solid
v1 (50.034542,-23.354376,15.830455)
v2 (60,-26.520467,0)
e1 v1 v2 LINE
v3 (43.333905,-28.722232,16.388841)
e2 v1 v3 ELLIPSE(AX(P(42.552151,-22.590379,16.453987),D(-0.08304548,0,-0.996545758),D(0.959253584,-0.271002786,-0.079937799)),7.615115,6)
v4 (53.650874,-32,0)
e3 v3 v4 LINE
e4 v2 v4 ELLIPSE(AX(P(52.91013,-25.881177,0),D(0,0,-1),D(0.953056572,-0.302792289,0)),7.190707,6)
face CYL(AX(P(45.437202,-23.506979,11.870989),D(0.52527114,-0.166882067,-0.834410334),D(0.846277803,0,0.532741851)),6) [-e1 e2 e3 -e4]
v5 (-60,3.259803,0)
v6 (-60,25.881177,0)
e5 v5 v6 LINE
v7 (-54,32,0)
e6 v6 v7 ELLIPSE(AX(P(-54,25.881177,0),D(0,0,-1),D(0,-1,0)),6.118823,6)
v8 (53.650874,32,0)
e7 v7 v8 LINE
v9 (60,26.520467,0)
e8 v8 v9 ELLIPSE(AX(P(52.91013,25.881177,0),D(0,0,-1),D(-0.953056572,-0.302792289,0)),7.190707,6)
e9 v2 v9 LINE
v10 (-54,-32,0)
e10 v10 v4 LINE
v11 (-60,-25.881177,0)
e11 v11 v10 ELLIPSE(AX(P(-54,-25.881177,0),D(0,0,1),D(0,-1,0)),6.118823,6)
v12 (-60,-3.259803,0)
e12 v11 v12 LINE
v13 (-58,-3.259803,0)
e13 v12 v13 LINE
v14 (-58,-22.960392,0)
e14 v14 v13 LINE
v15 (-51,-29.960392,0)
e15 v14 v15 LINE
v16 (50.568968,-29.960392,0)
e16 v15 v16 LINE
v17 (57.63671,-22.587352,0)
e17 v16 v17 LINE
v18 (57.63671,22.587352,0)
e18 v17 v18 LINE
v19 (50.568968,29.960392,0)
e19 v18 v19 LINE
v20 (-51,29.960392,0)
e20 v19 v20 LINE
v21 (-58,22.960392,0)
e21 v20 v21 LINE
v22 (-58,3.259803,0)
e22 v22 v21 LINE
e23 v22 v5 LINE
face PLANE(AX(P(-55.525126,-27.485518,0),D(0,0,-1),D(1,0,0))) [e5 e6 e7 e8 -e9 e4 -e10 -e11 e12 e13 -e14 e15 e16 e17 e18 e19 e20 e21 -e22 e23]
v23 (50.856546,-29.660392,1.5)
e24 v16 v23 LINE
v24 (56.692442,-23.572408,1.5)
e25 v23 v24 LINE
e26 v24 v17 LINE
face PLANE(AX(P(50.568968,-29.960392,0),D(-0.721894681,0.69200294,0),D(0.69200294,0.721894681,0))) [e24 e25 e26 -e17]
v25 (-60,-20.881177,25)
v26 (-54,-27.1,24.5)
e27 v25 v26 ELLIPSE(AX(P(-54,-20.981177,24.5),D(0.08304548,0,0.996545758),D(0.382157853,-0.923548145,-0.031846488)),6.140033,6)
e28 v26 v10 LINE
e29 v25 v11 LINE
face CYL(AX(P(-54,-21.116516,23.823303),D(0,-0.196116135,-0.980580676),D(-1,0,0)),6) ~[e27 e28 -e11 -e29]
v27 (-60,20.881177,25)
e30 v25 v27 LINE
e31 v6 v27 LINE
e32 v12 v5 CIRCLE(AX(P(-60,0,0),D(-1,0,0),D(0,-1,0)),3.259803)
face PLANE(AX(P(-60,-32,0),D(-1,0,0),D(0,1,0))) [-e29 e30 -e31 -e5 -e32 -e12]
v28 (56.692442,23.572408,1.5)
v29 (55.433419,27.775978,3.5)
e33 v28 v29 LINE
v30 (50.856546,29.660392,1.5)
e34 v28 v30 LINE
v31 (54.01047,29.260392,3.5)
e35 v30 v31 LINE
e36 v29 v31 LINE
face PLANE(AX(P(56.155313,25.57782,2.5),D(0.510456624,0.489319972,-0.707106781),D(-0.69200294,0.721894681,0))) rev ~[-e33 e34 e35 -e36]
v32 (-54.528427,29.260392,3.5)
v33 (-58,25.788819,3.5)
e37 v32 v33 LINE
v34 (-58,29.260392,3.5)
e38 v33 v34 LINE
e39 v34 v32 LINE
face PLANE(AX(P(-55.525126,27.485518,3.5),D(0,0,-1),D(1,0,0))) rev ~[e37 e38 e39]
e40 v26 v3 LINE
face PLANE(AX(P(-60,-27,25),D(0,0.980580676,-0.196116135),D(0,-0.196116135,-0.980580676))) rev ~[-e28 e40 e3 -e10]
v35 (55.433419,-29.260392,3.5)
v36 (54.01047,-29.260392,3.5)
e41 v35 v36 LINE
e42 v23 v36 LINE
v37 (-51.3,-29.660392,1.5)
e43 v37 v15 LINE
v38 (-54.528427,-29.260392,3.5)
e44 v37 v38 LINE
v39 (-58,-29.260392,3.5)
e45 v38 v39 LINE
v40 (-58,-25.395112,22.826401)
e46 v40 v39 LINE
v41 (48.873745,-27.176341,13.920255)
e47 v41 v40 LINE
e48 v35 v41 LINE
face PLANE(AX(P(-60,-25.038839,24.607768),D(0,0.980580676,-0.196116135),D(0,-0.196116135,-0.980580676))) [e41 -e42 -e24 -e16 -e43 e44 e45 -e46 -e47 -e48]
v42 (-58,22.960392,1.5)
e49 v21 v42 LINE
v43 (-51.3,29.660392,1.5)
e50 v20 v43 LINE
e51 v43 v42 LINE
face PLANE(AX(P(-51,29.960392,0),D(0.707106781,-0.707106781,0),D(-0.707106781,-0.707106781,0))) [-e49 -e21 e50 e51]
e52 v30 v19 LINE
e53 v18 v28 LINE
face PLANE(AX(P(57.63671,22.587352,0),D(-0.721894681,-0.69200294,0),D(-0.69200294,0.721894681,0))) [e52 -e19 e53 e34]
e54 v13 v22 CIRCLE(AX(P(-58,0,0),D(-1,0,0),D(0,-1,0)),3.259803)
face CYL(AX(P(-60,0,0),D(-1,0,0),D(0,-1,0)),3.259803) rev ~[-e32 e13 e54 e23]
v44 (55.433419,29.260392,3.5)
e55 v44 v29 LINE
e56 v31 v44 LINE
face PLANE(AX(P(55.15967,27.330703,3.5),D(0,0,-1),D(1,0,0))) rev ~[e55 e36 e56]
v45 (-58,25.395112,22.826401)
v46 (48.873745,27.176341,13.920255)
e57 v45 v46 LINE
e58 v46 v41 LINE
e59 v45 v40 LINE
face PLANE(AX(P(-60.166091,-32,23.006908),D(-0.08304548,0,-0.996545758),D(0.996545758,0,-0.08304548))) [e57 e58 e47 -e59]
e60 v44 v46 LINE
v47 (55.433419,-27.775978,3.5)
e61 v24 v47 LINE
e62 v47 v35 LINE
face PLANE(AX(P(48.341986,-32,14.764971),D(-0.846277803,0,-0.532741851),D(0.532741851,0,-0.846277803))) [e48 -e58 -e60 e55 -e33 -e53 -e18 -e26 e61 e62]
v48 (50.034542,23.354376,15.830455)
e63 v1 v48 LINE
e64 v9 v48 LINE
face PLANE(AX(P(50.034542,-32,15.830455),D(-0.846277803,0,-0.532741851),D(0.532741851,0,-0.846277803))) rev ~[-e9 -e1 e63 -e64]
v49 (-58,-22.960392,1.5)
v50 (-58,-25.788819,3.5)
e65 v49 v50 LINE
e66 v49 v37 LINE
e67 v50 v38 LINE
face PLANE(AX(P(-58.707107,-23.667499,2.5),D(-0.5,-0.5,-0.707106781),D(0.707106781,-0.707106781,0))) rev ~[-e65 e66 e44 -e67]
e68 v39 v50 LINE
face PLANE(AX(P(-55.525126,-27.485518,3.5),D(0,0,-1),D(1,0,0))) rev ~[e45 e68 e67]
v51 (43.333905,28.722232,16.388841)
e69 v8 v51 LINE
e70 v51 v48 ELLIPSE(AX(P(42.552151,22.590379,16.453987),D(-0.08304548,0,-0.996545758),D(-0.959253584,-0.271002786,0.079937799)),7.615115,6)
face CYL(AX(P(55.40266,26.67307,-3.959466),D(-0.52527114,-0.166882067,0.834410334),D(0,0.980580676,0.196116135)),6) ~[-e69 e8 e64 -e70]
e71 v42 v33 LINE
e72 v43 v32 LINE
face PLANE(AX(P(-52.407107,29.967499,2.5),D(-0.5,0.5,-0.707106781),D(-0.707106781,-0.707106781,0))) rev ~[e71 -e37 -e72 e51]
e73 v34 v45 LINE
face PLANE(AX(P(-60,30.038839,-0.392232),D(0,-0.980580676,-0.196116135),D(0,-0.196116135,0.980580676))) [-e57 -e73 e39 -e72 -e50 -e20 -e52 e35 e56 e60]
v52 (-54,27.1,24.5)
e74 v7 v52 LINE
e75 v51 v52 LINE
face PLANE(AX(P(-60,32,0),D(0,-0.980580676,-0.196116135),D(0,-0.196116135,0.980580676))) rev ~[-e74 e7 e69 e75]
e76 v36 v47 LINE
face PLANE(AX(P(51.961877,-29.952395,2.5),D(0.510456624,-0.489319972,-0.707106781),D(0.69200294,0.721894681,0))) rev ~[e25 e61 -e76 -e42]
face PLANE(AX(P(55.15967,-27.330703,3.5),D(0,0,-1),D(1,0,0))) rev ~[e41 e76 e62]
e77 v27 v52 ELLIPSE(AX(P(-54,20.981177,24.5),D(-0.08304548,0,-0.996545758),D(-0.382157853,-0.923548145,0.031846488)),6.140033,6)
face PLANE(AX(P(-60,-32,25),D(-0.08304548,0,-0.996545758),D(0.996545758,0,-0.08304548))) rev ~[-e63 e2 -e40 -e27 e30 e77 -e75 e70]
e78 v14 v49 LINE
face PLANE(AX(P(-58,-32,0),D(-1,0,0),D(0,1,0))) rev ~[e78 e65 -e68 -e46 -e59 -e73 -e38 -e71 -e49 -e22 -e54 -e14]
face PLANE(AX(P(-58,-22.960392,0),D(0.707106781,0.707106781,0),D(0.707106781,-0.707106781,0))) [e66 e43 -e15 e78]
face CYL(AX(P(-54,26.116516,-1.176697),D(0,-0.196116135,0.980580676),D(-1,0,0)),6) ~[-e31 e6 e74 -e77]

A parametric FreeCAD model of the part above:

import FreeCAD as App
import Part
import Sketcher


def edges_at(feature, points):
    """Names of the edges that pass closest to the given points."""
    edges = feature.Shape.Edges
    near = lambda p: min(range(len(edges)), key=lambda i: edges[i].distToShape(Part.Vertex(*p))[0])
    return sorted({f"Edge{near(p) + 1}" for p in points})


def faces_at(feature, points):
    """Names of the faces that lie closest to the given points."""
    faces = feature.Shape.Faces
    near = lambda p: min(range(len(faces)), key=lambda i: faces[i].distToShape(Part.Vertex(*p))[0])
    return sorted({f"Face{near(p) + 1}" for p in points})

doc = App.newDocument("Part")
params = doc.addObject("Spreadsheet::Sheet", "Params")
for row, (alias, value) in enumerate([
    ("sketch1_width", "120 mm"),
    ("sketch1_height", "64 mm"),
    ("pad1_length", "25 mm"),
    ("sketch2_width", "120 mm"),
    ("sketch2_height", "10 mm"),
    ("sketch3_height", "15 mm"),
    ("sketch3_length", "10 mm"),
    ("sketch4_width", "5 mm"),
    ("sketch4_height", "25 mm"),
    ("thickness_wall", "2 mm"),
    ("pocket4_length", "25 mm"),
    ("sketch6_width", "7 mm"),
    ("pad2_length", "3.5 mm"),
    ("chamfer_size", "2 mm"),
    ("fillet_radius", "6 mm"),
], start=1):
    params.set(f"A{row}", alias)
    params.set(f"B{row}", "=" + value)
    params.setAlias(f"B{row}", alias)

body = doc.addObject("PartDesign::Body", "Body")

sketch1 = body.newObject("Sketcher::SketchObject", "Sketch")
sketch1.AttachmentSupport = (doc.getObject("XY_Plane"), [""])
sketch1.MapMode = "FlatFace"
sketch1.addGeometry(Part.LineSegment(App.Vector(-60, 32, 0), App.Vector(-60, -32, 0)), False)
sketch1.addGeometry(Part.LineSegment(App.Vector(-60, -32, 0), App.Vector(60, -32, 0)), False)
sketch1.addGeometry(Part.LineSegment(App.Vector(60, -32, 0), App.Vector(60, 32, 0)), False)
sketch1.addGeometry(Part.LineSegment(App.Vector(60, 32, 0), App.Vector(-60, 32, 0)), False)
sketch1.addConstraint(Sketcher.Constraint("Coincident", 0, 2, 1, 1))
sketch1.addConstraint(Sketcher.Constraint("Coincident", 1, 2, 2, 1))
sketch1.addConstraint(Sketcher.Constraint("Coincident", 2, 2, 3, 1))
sketch1.addConstraint(Sketcher.Constraint("Coincident", 3, 2, 0, 1))
sketch1.addConstraint(Sketcher.Constraint("Vertical", 0))
sketch1.addConstraint(Sketcher.Constraint("Horizontal", 1))
sketch1.addConstraint(Sketcher.Constraint("Vertical", 2))
sketch1.addConstraint(Sketcher.Constraint("Horizontal", 3))
sketch1.addConstraint(Sketcher.Constraint("Symmetric", 0, 2, 2, 2, -1, 1))
sketch1.addConstraint(Sketcher.Constraint("DistanceX", 1, 1, 1, 2, 120.0))
sketch1.addConstraint(Sketcher.Constraint("DistanceY", 0, 2, 0, 1, 64.0))
sketch1.setExpression("Constraints[9]", "Params.sketch1_width")
sketch1.setExpression("Constraints[10]", "Params.sketch1_height")
pad1 = body.newObject("PartDesign::Pad", "Pad")
pad1.Profile = sketch1
pad1.setExpression("Length", "Params.pad1_length")

sketch2 = body.newObject("Sketcher::SketchObject", "Sketch001")
sketch2.AttachmentSupport = (doc.getObject("XZ_Plane"), [""])
sketch2.MapMode = "FlatFace"
sketch2.AttachmentOffset = App.Placement(App.Vector(0, 0, 32), App.Rotation())
sketch2.addGeometry(Part.LineSegment(App.Vector(60, 25, 0), App.Vector(-60, 25, 0)), False)
sketch2.addGeometry(Part.LineSegment(App.Vector(-60, 25, 0), App.Vector(60, 15, 0)), False)
sketch2.addGeometry(Part.LineSegment(App.Vector(60, 15, 0), App.Vector(60, 25, 0)), False)
sketch2.addConstraint(Sketcher.Constraint("Coincident", 0, 2, 1, 1))
sketch2.addConstraint(Sketcher.Constraint("Coincident", 1, 2, 2, 1))
sketch2.addConstraint(Sketcher.Constraint("Coincident", 2, 2, 0, 1))
sketch2.addConstraint(Sketcher.Constraint("Horizontal", 0))
sketch2.addConstraint(Sketcher.Constraint("Vertical", 2))
sketch2.addConstraint(Sketcher.Constraint("DistanceX", 0, 2, 0, 1, 120.0))
sketch2.addConstraint(Sketcher.Constraint("DistanceY", 2, 1, 2, 2, 10.0))
sketch2.addConstraint(Sketcher.Constraint("DistanceX", 0, 2, -1, 1, 60.0))
sketch2.addConstraint(Sketcher.Constraint("DistanceY", -1, 1, 0, 2, 25.0))
sketch2.setExpression("Constraints[5]", "Params.sketch2_width")
sketch2.setExpression("Constraints[6]", "Params.sketch2_height")
pocket1 = body.newObject("PartDesign::Pocket", "Pocket")
pocket1.Profile = sketch2
pocket1.Type = "ThroughAll"

sketch3 = body.newObject("Sketcher::SketchObject", "Sketch002")
sketch3.AttachmentSupport = (doc.getObject("XZ_Plane"), [""])
sketch3.MapMode = "FlatFace"
sketch3.AttachmentOffset = App.Placement(App.Vector(0, 0, 32), App.Rotation())
sketch3.addGeometry(Part.LineSegment(App.Vector(50, 16, 0), App.Vector(60, 0, 0)), False)
sketch3.addGeometry(Part.LineSegment(App.Vector(60, 0, 0), App.Vector(60, 15, 0)), False)
sketch3.addGeometry(Part.LineSegment(App.Vector(60, 15, 0), App.Vector(50, 16, 0)), False)
sketch3.addConstraint(Sketcher.Constraint("Coincident", 0, 2, 1, 1))
sketch3.addConstraint(Sketcher.Constraint("Coincident", 1, 2, 2, 1))
sketch3.addConstraint(Sketcher.Constraint("Coincident", 2, 2, 0, 1))
sketch3.addConstraint(Sketcher.Constraint("Vertical", 1))
sketch3.addConstraint(Sketcher.Constraint("PointOnObject", 0, 2, -1))
sketch3.addConstraint(Sketcher.Constraint("DistanceY", 1, 1, 1, 2, 15.0))
sketch3.addConstraint(Sketcher.Constraint("Distance", 2, 10.0))
sketch3.addConstraint(Sketcher.Constraint("DistanceX", -1, 1, 0, 2, 60.0))
sketch3.addConstraint(Sketcher.Constraint("Distance", 0, 18.705979))
sketch3.setExpression("Constraints[5]", "Params.sketch3_height")
sketch3.setExpression("Constraints[6]", "Params.sketch3_length")
pocket2 = body.newObject("PartDesign::Pocket", "Pocket001")
pocket2.Profile = sketch3
pocket2.Type = "ThroughAll"

sketch4 = body.newObject("Sketcher::SketchObject", "Sketch003")
sketch4.AttachmentSupport = (doc.getObject("YZ_Plane"), [""])
sketch4.MapMode = "FlatFace"
sketch4.AttachmentOffset = App.Placement(App.Vector(0, 0, -60), App.Rotation())
sketch4.addGeometry(Part.LineSegment(App.Vector(27, 25, 0), App.Vector(32, 25, 0)), False)
sketch4.addGeometry(Part.LineSegment(App.Vector(32, 25, 0), App.Vector(32, 0, 0)), False)
sketch4.addGeometry(Part.LineSegment(App.Vector(32, 0, 0), App.Vector(27, 25, 0)), False)
sketch4.addGeometry(Part.LineSegment(App.Vector(-32, 25, 0), App.Vector(-27, 25, 0)), False)
sketch4.addGeometry(Part.LineSegment(App.Vector(-27, 25, 0), App.Vector(-32, 0, 0)), False)
sketch4.addGeometry(Part.LineSegment(App.Vector(-32, 0, 0), App.Vector(-32, 25, 0)), False)
sketch4.addConstraint(Sketcher.Constraint("Coincident", 0, 2, 1, 1))
sketch4.addConstraint(Sketcher.Constraint("Coincident", 1, 2, 2, 1))
sketch4.addConstraint(Sketcher.Constraint("Coincident", 2, 2, 0, 1))
sketch4.addConstraint(Sketcher.Constraint("Coincident", 3, 2, 4, 1))
sketch4.addConstraint(Sketcher.Constraint("Coincident", 4, 2, 5, 1))
sketch4.addConstraint(Sketcher.Constraint("Coincident", 5, 2, 3, 1))
sketch4.addConstraint(Sketcher.Constraint("Horizontal", 0))
sketch4.addConstraint(Sketcher.Constraint("Vertical", 1))
sketch4.addConstraint(Sketcher.Constraint("Horizontal", 3))
sketch4.addConstraint(Sketcher.Constraint("Vertical", 5))
sketch4.addConstraint(Sketcher.Constraint("Symmetric", 1, 2, 4, 2, -1, 1))
sketch4.addConstraint(Sketcher.Constraint("Symmetric", 2, 2, 3, 2, -2))
sketch4.addConstraint(Sketcher.Constraint("PointOnObject", 1, 2, -1))
sketch4.addConstraint(Sketcher.Constraint("DistanceX", 0, 1, 0, 2, 5.0))
sketch4.addConstraint(Sketcher.Constraint("DistanceY", 1, 2, 1, 1, 25.0))
sketch4.addConstraint(Sketcher.Constraint("DistanceX", -1, 1, 0, 2, 32.0))
sketch4.setExpression("Constraints[13]", "Params.sketch4_width")
sketch4.setExpression("Constraints[14]", "Params.sketch4_height")
pocket3 = body.newObject("PartDesign::Pocket", "Pocket002")
pocket3.Profile = sketch4
pocket3.Type = "ThroughAll"
pocket3.Reversed = True
doc.recompute()

thickness = body.newObject("PartDesign::Thickness", "Thickness")
thickness.Base = (pocket3, faces_at(pocket3, [(0, 0, 0)]))
thickness.setExpression("Value", "Params.thickness_wall")
thickness.Reversed = True
thickness.Join = "Arc"

sketch5 = body.newObject("Sketcher::SketchObject", "Sketch004")
sketch5.AttachmentSupport = (doc.getObject("YZ_Plane"), [""])
sketch5.MapMode = "FlatFace"
sketch5.AttachmentOffset = App.Placement(App.Vector(0, 0, -60), App.Rotation())
sketch5.addGeometry(Part.Circle(App.Vector(0, 0, 0), App.Vector(0, 0, 1), 3.3), False)
sketch5.addConstraint(Sketcher.Constraint("Coincident", 0, 3, -1, 1))
sketch5.addConstraint(Sketcher.Constraint("Diameter", 0, 6.519606))
pocket4 = body.newObject("PartDesign::Pocket", "Pocket003")
pocket4.Profile = sketch5
pocket4.setExpression("Length", "Params.pocket4_length")
pocket4.Reversed = True

sketch6 = body.newObject("Sketcher::SketchObject", "Sketch005")
sketch6.AttachmentSupport = (doc.getObject("XY_Plane"), [""])
sketch6.MapMode = "FlatFace"
sketch6.addGeometry(Part.LineSegment(App.Vector(-51, -30, 0), App.Vector(-58, -30, 0)), False)
sketch6.addGeometry(Part.LineSegment(App.Vector(-58, -30, 0), App.Vector(-58, -23, 0)), False)
sketch6.addGeometry(Part.LineSegment(App.Vector(-58, -23, 0), App.Vector(-51, -30, 0)), False)
sketch6.addGeometry(Part.LineSegment(App.Vector(58, -23, 0), App.Vector(58, -30, 0)), False)
sketch6.addGeometry(Part.LineSegment(App.Vector(58, -30, 0), App.Vector(51, -30, 0)), False)
sketch6.addGeometry(Part.LineSegment(App.Vector(51, -30, 0), App.Vector(58, -23, 0)), False)
sketch6.addGeometry(Part.LineSegment(App.Vector(58, 23, 0), App.Vector(51, 30, 0)), False)
sketch6.addGeometry(Part.LineSegment(App.Vector(51, 30, 0), App.Vector(58, 30, 0)), False)
sketch6.addGeometry(Part.LineSegment(App.Vector(58, 30, 0), App.Vector(58, 23, 0)), False)
sketch6.addGeometry(Part.LineSegment(App.Vector(-58, 23, 0), App.Vector(-58, 30, 0)), False)
sketch6.addGeometry(Part.LineSegment(App.Vector(-58, 30, 0), App.Vector(-51, 30, 0)), False)
sketch6.addGeometry(Part.LineSegment(App.Vector(-51, 30, 0), App.Vector(-58, 23, 0)), False)
sketch6.addConstraint(Sketcher.Constraint("Coincident", 0, 2, 1, 1))
sketch6.addConstraint(Sketcher.Constraint("Coincident", 1, 2, 2, 1))
sketch6.addConstraint(Sketcher.Constraint("Coincident", 2, 2, 0, 1))
sketch6.addConstraint(Sketcher.Constraint("Coincident", 3, 2, 4, 1))
sketch6.addConstraint(Sketcher.Constraint("Coincident", 4, 2, 5, 1))
sketch6.addConstraint(Sketcher.Constraint("Coincident", 5, 2, 3, 1))
sketch6.addConstraint(Sketcher.Constraint("Coincident", 6, 2, 7, 1))
sketch6.addConstraint(Sketcher.Constraint("Coincident", 7, 2, 8, 1))
sketch6.addConstraint(Sketcher.Constraint("Coincident", 8, 2, 6, 1))
sketch6.addConstraint(Sketcher.Constraint("Coincident", 9, 2, 10, 1))
sketch6.addConstraint(Sketcher.Constraint("Coincident", 10, 2, 11, 1))
sketch6.addConstraint(Sketcher.Constraint("Coincident", 11, 2, 9, 1))
sketch6.addConstraint(Sketcher.Constraint("Horizontal", 0))
sketch6.addConstraint(Sketcher.Constraint("Vertical", 1))
sketch6.addConstraint(Sketcher.Constraint("Vertical", 3))
sketch6.addConstraint(Sketcher.Constraint("Horizontal", 4))
sketch6.addConstraint(Sketcher.Constraint("Horizontal", 7))
sketch6.addConstraint(Sketcher.Constraint("Vertical", 8))
sketch6.addConstraint(Sketcher.Constraint("Vertical", 9))
sketch6.addConstraint(Sketcher.Constraint("Horizontal", 10))
sketch6.addConstraint(Sketcher.Constraint("Symmetric", 4, 2, 6, 2, -1))
sketch6.addConstraint(Sketcher.Constraint("Symmetric", 5, 2, 8, 2, -1))
sketch6.addConstraint(Sketcher.Constraint("Symmetric", 0, 2, 9, 2, -1))
sketch6.addConstraint(Sketcher.Constraint("Perpendicular", 2, 11))
sketch6.addConstraint(Sketcher.Constraint("Horizontal", 2, 2, 3, 2))
sketch6.addConstraint(Sketcher.Constraint("Vertical", 2, 2, 10, 2))
sketch6.addConstraint(Sketcher.Constraint("Equal", 10, 1))
sketch6.addConstraint(Sketcher.Constraint("DistanceX", 0, 2, 0, 1, 7.0))
sketch6.addConstraint(Sketcher.Constraint("DistanceX", 0, 2, -1, 1, 58.0))
sketch6.addConstraint(Sketcher.Constraint("DistanceY", 3, 2, 3, 1, 7.37304))
sketch6.addConstraint(Sketcher.Constraint("DistanceX", 4, 2, 4, 1, 7.067742))
sketch6.addConstraint(Sketcher.Constraint("DistanceY", 0, 2, -1, 1, 29.960392))
sketch6.addConstraint(Sketcher.Constraint("DistanceX", -1, 1, 3, 2, 57.63671))
sketch6.setExpression("Constraints[27]", "Params.sketch6_width")
pad2 = body.newObject("PartDesign::Pad", "Pad001")
pad2.Profile = sketch6
pad2.setExpression("Length", "Params.pad2_length")
doc.recompute()

chamfer = body.newObject("PartDesign::Chamfer", "Chamfer")
chamfer.Base = (pad2, edges_at(pad2, [
    (-54.85, 26.11, 3.5),
    (53.337, -27.073, 3.5),
    (-54.85, -26.11, 3.5),
    (53.337, 27.073, 3.5),
]))
chamfer.setExpression("Size", "Params.chamfer_size")
doc.recompute()

fillet = body.newObject("PartDesign::Fillet", "Fillet")
fillet.Base = (chamfer, edges_at(chamfer, [
    (55.017, -30.417, 7.915),
    (55.017, 30.417, 7.915),
    (-60, -29.5, 12.5),
    (-60, 29.5, 12.5),
]))
fillet.setExpression("Radius", "Params.fillet_radius")

doc.recompute()
